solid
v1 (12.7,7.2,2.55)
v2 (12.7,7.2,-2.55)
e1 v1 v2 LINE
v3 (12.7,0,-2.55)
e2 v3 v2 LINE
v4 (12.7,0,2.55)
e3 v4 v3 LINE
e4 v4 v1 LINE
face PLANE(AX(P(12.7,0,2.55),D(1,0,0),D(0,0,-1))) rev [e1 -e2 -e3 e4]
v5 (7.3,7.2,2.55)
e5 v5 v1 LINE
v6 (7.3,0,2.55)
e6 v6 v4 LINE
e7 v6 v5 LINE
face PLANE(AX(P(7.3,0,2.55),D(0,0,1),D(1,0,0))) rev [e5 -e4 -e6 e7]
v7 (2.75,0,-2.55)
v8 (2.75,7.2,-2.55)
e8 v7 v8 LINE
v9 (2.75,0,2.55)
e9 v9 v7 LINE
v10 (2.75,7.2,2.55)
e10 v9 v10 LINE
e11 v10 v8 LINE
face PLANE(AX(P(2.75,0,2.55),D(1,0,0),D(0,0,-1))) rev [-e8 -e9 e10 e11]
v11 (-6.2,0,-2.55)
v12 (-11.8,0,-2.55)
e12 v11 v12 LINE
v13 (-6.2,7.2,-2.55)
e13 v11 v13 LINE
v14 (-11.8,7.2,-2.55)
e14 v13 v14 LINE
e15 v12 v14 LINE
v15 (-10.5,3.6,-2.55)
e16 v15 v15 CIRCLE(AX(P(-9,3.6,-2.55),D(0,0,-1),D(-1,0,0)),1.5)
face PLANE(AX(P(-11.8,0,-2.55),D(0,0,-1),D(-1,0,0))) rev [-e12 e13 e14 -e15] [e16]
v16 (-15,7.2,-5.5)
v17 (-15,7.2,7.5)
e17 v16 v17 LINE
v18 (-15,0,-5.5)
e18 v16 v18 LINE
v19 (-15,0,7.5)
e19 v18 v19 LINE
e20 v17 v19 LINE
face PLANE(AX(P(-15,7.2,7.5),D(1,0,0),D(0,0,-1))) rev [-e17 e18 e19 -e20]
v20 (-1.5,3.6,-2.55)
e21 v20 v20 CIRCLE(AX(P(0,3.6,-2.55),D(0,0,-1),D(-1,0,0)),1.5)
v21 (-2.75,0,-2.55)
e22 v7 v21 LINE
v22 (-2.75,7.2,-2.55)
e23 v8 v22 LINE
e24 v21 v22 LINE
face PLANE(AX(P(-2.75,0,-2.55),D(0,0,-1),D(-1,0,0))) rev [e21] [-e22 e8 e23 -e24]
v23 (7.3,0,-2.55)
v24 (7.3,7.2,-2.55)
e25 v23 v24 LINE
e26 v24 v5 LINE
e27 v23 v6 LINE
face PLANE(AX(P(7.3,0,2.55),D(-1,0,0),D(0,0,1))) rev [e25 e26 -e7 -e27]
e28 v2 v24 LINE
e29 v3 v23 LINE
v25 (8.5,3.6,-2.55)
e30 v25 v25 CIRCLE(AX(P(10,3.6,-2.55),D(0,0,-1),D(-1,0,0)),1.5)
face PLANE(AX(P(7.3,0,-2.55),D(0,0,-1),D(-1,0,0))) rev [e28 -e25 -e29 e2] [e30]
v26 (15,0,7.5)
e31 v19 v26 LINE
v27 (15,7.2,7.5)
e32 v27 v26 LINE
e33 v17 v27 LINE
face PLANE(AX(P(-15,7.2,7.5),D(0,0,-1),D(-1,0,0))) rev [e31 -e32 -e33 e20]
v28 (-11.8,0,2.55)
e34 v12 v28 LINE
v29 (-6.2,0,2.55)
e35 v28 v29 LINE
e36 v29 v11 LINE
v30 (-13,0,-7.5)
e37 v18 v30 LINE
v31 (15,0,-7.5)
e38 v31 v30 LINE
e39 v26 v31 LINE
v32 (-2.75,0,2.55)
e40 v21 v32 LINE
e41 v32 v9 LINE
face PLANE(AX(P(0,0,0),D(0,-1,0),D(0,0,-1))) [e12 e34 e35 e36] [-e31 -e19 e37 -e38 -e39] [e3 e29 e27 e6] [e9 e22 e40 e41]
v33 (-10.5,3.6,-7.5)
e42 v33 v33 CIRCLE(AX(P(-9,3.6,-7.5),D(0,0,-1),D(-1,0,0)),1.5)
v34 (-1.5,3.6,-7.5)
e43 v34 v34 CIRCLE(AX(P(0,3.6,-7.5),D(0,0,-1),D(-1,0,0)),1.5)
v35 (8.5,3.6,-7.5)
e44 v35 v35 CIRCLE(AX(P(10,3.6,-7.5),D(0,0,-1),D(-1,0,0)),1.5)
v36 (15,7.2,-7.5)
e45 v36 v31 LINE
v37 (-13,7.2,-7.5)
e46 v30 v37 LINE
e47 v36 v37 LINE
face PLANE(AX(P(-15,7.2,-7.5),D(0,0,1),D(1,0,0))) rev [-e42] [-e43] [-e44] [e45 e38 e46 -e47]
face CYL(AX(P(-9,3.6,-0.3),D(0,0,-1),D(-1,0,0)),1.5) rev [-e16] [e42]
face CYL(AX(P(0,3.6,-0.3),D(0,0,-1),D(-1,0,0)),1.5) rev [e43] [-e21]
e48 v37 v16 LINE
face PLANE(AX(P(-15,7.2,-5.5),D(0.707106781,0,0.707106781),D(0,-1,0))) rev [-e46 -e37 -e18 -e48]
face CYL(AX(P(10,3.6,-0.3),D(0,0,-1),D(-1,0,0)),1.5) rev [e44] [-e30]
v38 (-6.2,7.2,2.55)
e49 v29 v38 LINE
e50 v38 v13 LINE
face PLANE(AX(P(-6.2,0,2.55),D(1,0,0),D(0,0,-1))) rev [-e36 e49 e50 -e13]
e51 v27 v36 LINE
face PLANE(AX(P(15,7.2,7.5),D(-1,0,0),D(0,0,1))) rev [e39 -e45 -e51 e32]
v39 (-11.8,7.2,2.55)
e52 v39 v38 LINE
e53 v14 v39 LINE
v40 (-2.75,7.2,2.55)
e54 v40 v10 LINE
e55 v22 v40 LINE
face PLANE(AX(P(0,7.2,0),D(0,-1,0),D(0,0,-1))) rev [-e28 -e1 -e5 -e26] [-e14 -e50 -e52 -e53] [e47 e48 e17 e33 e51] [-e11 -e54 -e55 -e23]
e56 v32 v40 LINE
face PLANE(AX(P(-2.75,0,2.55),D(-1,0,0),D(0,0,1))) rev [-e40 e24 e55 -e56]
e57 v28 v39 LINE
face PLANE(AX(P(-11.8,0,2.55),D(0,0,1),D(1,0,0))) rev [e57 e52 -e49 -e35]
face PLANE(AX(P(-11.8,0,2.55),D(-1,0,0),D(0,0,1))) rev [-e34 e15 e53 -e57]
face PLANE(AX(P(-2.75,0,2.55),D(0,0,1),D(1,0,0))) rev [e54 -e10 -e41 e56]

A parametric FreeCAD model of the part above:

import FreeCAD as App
import Part
import Sketcher
from FreeCAD import Vector
Q = App.Units.Quantity


def edges_at(feature, points):
    """Names of the edges that pass closest to the given points."""
    edges = feature.Shape.Edges
    near = lambda p: min(range(len(edges)), key=lambda i: edges[i].distToShape(Part.Vertex(*p))[0])
    return sorted({f"Edge{near(p) + 1}" for p in points})

doc = App.newDocument("Part")
params = doc.addObject("Spreadsheet::Sheet", "Params")
for row, (alias, value) in enumerate([
    ("sketch1_width", "30 mm"),
    ("sketch1_height", "15 mm"),
    ("pad1_length", "7.2 mm"),
    ("sketch2_width", "5.6 mm"),
    ("sketch2_width2", "5.5 mm"),
    ("sketch2_width3", "5.4 mm"),
    ("sketch2_height", "5.1 mm"),
    ("pocket1_length", "7.2 mm"),
    ("sketch3_diameter", "3 mm"),
    ("pocket2_length", "7.2 mm"),
    ("chamfer_size", "2 mm"),
], start=1):
    params.set(f"A{row}", alias)
    params.set(f"B{row}", "=" + value)
    params.setAlias(f"B{row}", alias)

body = doc.addObject("PartDesign::Body", "Body")

# Sketch on XZ plane
sketch1 = body.newObject("Sketcher::SketchObject", "Sketch")
sketch1.AttachmentSupport = (doc.getObject("XZ_Plane"), [""])
sketch1.MapMode = "FlatFace"
sketch1.addGeometry(Part.LineSegment(Vector(-15, -7.5, 0), Vector(-15, 7.5, 0)), False)
sketch1.addGeometry(Part.LineSegment(Vector(-15, 7.5, 0), Vector(15, 7.5, 0)), False)
sketch1.addGeometry(Part.LineSegment(Vector(15, 7.5, 0), Vector(15, -7.5, 0)), False)
sketch1.addGeometry(Part.LineSegment(Vector(15, -7.5, 0), Vector(-15, -7.5, 0)), False)
sketch1.addConstraint(Sketcher.Constraint("Coincident", 0, 2, 1, 1))
sketch1.addConstraint(Sketcher.Constraint("Coincident", 1, 2, 2, 1))
sketch1.addConstraint(Sketcher.Constraint("Coincident", 2, 2, 3, 1))
sketch1.addConstraint(Sketcher.Constraint("Coincident", 3, 2, 0, 1))
sketch1.addConstraint(Sketcher.Constraint("Vertical", 0))
sketch1.addConstraint(Sketcher.Constraint("Horizontal", 1))
sketch1.addConstraint(Sketcher.Constraint("Vertical", 2))
sketch1.addConstraint(Sketcher.Constraint("Horizontal", 3))
sketch1.addConstraint(Sketcher.Constraint("Symmetric", 0, 2, 2, 2, -1, 1))
sketch1.addConstraint(Sketcher.Constraint("DistanceX", 1, 1, 1, 2, Q("30 mm")))
sketch1.addConstraint(Sketcher.Constraint("DistanceY", 0, 1, 0, 2, Q("15 mm")))
sketch1.setExpression("Constraints[9]", "Params.sketch1_width")
sketch1.setExpression("Constraints[10]", "Params.sketch1_height")
pad1 = body.newObject("PartDesign::Pad", "Pad")
pad1.Profile = sketch1
pad1.setExpression("Length", "Params.pad1_length")
pad1.Reversed = True

# Sketch on XZ plane
sketch2 = body.newObject("Sketcher::SketchObject", "Sketch001")
sketch2.AttachmentSupport = (doc.getObject("XZ_Plane"), [""])
sketch2.MapMode = "FlatFace"
sketch2.AttachmentOffset = App.Placement(Vector(0, 0, -7.2), App.Rotation())
sketch2.addGeometry(Part.LineSegment(Vector(-11.8, -2.55, 0), Vector(-11.8, 2.55, 0)), False)
sketch2.addGeometry(Part.LineSegment(Vector(-11.8, 2.55, 0), Vector(-6.2, 2.55, 0)), False)
sketch2.addGeometry(Part.LineSegment(Vector(-6.2, 2.55, 0), Vector(-6.2, -2.55, 0)), False)
sketch2.addGeometry(Part.LineSegment(Vector(-6.2, -2.55, 0), Vector(-11.8, -2.55, 0)), False)
sketch2.addGeometry(Part.LineSegment(Vector(-2.75, -2.55, 0), Vector(-2.75, 2.55, 0)), False)
sketch2.addGeometry(Part.LineSegment(Vector(-2.75, 2.55, 0), Vector(2.75, 2.55, 0)), False)
sketch2.addGeometry(Part.LineSegment(Vector(2.75, 2.55, 0), Vector(2.75, -2.55, 0)), False)
sketch2.addGeometry(Part.LineSegment(Vector(2.75, -2.55, 0), Vector(-2.75, -2.55, 0)), False)
sketch2.addGeometry(Part.LineSegment(Vector(7.3, -2.55, 0), Vector(7.3, 2.55, 0)), False)
sketch2.addGeometry(Part.LineSegment(Vector(7.3, 2.55, 0), Vector(12.7, 2.55, 0)), False)
sketch2.addGeometry(Part.LineSegment(Vector(12.7, 2.55, 0), Vector(12.7, -2.55, 0)), False)
sketch2.addGeometry(Part.LineSegment(Vector(12.7, -2.55, 0), Vector(7.3, -2.55, 0)), False)
sketch2.addConstraint(Sketcher.Constraint("Coincident", 0, 2, 1, 1))
sketch2.addConstraint(Sketcher.Constraint("Coincident", 1, 2, 2, 1))
sketch2.addConstraint(Sketcher.Constraint("Coincident", 2, 2, 3, 1))
sketch2.addConstraint(Sketcher.Constraint("Coincident", 3, 2, 0, 1))
sketch2.addConstraint(Sketcher.Constraint("Coincident", 4, 2, 5, 1))
sketch2.addConstraint(Sketcher.Constraint("Coincident", 5, 2, 6, 1))
sketch2.addConstraint(Sketcher.Constraint("Coincident", 6, 2, 7, 1))
sketch2.addConstraint(Sketcher.Constraint("Coincident", 7, 2, 4, 1))
sketch2.addConstraint(Sketcher.Constraint("Coincident", 8, 2, 9, 1))
sketch2.addConstraint(Sketcher.Constraint("Coincident", 9, 2, 10, 1))
sketch2.addConstraint(Sketcher.Constraint("Coincident", 10, 2, 11, 1))
sketch2.addConstraint(Sketcher.Constraint("Coincident", 11, 2, 8, 1))
sketch2.addConstraint(Sketcher.Constraint("Vertical", 0))
sketch2.addConstraint(Sketcher.Constraint("Horizontal", 1))
sketch2.addConstraint(Sketcher.Constraint("Vertical", 2))
sketch2.addConstraint(Sketcher.Constraint("Horizontal", 3))
sketch2.addConstraint(Sketcher.Constraint("Vertical", 4))
sketch2.addConstraint(Sketcher.Constraint("Horizontal", 5))
sketch2.addConstraint(Sketcher.Constraint("Vertical", 6))
sketch2.addConstraint(Sketcher.Constraint("Horizontal", 7))
sketch2.addConstraint(Sketcher.Constraint("Vertical", 8))
sketch2.addConstraint(Sketcher.Constraint("Horizontal", 9))
sketch2.addConstraint(Sketcher.Constraint("Vertical", 10))
sketch2.addConstraint(Sketcher.Constraint("Horizontal", 11))
sketch2.addConstraint(Sketcher.Constraint("Symmetric", 4, 2, 6, 2, -1, 1))
sketch2.addConstraint(Sketcher.Constraint("Horizontal", 1, 2, 4, 2))
sketch2.addConstraint(Sketcher.Constraint("Horizontal", 3, 2, 6, 2))
sketch2.addConstraint(Sketcher.Constraint("Horizontal", 5, 2, 8, 2))
sketch2.addConstraint(Sketcher.Constraint("Horizontal", 7, 2, 10, 2))
sketch2.addConstraint(Sketcher.Constraint("DistanceX", 1, 1, 1, 2, Q("5.6 mm")))
sketch2.addConstraint(Sketcher.Constraint("DistanceX", 5, 1, 5, 2, Q("5.5 mm")))
sketch2.addConstraint(Sketcher.Constraint("DistanceX", 9, 1, 9, 2, Q("5.4 mm")))
sketch2.addConstraint(Sketcher.Constraint("DistanceY", 0, 1, 0, 2, Q("5.1 mm")))
sketch2.addConstraint(Sketcher.Constraint("DistanceX", 0, 2, -1, 1, Q("11.8 mm")))
sketch2.addConstraint(Sketcher.Constraint("DistanceX", -1, 1, 8, 2, Q("7.3 mm")))
sketch2.setExpression("Constraints[29]", "Params.sketch2_width")
sketch2.setExpression("Constraints[30]", "Params.sketch2_width2")
sketch2.setExpression("Constraints[31]", "Params.sketch2_width3")
sketch2.setExpression("Constraints[32]", "Params.sketch2_height")
pocket1 = body.newObject("PartDesign::Pocket", "Pocket")
pocket1.Profile = sketch2
pocket1.setExpression("Length", "Params.pocket1_length")
pocket1.Reversed = True

# Sketch on XY plane
sketch3 = body.newObject("Sketcher::SketchObject", "Sketch002")
sketch3.AttachmentSupport = (doc.getObject("XY_Plane"), [""])
sketch3.MapMode = "FlatFace"
sketch3.AttachmentOffset = App.Placement(Vector(0, 0, -7.5), App.Rotation())
sketch3.addGeometry(Part.Circle(Vector(-9, 3.6, 0), Vector(0, 0, 1), 1.5), False)
sketch3.addGeometry(Part.Circle(Vector(0, 3.6, 0), Vector(0, 0, 1), 1.5), False)
sketch3.addGeometry(Part.Circle(Vector(10, 3.6, 0), Vector(0, 0, 1), 1.5), False)
sketch3.addConstraint(Sketcher.Constraint("Equal", 0, 1))
sketch3.addConstraint(Sketcher.Constraint("Equal", 1, 2))
sketch3.addConstraint(Sketcher.Constraint("PointOnObject", 1, 3, -2))
sketch3.addConstraint(Sketcher.Constraint("Horizontal", 0, 3, 1, 3))
sketch3.addConstraint(Sketcher.Constraint("Horizontal", 1, 3, 2, 3))
sketch3.addConstraint(Sketcher.Constraint("Diameter", 0, Q("3 mm")))
sketch3.addConstraint(Sketcher.Constraint("DistanceX", 0, 3, -1, 1, Q("9 mm")))
sketch3.addConstraint(Sketcher.Constraint("DistanceX", -1, 1, 2, 3, Q("10 mm")))
sketch3.addConstraint(Sketcher.Constraint("DistanceY", -1, 1, 0, 3, Q("3.6 mm")))
sketch3.setExpression("Constraints[5]", "Params.sketch3_diameter")
pocket2 = body.newObject("PartDesign::Pocket", "Pocket001")
pocket2.Profile = sketch3
pocket2.setExpression("Length", "Params.pocket2_length")
pocket2.Reversed = True
doc.recompute()

chamfer = body.newObject("PartDesign::Chamfer", "Chamfer")
chamfer.Base = (pocket2, edges_at(pocket2, [(-15, 3.6, -7.5)]))
chamfer.setExpression("Size", "Params.chamfer_size")

doc.recompute()
